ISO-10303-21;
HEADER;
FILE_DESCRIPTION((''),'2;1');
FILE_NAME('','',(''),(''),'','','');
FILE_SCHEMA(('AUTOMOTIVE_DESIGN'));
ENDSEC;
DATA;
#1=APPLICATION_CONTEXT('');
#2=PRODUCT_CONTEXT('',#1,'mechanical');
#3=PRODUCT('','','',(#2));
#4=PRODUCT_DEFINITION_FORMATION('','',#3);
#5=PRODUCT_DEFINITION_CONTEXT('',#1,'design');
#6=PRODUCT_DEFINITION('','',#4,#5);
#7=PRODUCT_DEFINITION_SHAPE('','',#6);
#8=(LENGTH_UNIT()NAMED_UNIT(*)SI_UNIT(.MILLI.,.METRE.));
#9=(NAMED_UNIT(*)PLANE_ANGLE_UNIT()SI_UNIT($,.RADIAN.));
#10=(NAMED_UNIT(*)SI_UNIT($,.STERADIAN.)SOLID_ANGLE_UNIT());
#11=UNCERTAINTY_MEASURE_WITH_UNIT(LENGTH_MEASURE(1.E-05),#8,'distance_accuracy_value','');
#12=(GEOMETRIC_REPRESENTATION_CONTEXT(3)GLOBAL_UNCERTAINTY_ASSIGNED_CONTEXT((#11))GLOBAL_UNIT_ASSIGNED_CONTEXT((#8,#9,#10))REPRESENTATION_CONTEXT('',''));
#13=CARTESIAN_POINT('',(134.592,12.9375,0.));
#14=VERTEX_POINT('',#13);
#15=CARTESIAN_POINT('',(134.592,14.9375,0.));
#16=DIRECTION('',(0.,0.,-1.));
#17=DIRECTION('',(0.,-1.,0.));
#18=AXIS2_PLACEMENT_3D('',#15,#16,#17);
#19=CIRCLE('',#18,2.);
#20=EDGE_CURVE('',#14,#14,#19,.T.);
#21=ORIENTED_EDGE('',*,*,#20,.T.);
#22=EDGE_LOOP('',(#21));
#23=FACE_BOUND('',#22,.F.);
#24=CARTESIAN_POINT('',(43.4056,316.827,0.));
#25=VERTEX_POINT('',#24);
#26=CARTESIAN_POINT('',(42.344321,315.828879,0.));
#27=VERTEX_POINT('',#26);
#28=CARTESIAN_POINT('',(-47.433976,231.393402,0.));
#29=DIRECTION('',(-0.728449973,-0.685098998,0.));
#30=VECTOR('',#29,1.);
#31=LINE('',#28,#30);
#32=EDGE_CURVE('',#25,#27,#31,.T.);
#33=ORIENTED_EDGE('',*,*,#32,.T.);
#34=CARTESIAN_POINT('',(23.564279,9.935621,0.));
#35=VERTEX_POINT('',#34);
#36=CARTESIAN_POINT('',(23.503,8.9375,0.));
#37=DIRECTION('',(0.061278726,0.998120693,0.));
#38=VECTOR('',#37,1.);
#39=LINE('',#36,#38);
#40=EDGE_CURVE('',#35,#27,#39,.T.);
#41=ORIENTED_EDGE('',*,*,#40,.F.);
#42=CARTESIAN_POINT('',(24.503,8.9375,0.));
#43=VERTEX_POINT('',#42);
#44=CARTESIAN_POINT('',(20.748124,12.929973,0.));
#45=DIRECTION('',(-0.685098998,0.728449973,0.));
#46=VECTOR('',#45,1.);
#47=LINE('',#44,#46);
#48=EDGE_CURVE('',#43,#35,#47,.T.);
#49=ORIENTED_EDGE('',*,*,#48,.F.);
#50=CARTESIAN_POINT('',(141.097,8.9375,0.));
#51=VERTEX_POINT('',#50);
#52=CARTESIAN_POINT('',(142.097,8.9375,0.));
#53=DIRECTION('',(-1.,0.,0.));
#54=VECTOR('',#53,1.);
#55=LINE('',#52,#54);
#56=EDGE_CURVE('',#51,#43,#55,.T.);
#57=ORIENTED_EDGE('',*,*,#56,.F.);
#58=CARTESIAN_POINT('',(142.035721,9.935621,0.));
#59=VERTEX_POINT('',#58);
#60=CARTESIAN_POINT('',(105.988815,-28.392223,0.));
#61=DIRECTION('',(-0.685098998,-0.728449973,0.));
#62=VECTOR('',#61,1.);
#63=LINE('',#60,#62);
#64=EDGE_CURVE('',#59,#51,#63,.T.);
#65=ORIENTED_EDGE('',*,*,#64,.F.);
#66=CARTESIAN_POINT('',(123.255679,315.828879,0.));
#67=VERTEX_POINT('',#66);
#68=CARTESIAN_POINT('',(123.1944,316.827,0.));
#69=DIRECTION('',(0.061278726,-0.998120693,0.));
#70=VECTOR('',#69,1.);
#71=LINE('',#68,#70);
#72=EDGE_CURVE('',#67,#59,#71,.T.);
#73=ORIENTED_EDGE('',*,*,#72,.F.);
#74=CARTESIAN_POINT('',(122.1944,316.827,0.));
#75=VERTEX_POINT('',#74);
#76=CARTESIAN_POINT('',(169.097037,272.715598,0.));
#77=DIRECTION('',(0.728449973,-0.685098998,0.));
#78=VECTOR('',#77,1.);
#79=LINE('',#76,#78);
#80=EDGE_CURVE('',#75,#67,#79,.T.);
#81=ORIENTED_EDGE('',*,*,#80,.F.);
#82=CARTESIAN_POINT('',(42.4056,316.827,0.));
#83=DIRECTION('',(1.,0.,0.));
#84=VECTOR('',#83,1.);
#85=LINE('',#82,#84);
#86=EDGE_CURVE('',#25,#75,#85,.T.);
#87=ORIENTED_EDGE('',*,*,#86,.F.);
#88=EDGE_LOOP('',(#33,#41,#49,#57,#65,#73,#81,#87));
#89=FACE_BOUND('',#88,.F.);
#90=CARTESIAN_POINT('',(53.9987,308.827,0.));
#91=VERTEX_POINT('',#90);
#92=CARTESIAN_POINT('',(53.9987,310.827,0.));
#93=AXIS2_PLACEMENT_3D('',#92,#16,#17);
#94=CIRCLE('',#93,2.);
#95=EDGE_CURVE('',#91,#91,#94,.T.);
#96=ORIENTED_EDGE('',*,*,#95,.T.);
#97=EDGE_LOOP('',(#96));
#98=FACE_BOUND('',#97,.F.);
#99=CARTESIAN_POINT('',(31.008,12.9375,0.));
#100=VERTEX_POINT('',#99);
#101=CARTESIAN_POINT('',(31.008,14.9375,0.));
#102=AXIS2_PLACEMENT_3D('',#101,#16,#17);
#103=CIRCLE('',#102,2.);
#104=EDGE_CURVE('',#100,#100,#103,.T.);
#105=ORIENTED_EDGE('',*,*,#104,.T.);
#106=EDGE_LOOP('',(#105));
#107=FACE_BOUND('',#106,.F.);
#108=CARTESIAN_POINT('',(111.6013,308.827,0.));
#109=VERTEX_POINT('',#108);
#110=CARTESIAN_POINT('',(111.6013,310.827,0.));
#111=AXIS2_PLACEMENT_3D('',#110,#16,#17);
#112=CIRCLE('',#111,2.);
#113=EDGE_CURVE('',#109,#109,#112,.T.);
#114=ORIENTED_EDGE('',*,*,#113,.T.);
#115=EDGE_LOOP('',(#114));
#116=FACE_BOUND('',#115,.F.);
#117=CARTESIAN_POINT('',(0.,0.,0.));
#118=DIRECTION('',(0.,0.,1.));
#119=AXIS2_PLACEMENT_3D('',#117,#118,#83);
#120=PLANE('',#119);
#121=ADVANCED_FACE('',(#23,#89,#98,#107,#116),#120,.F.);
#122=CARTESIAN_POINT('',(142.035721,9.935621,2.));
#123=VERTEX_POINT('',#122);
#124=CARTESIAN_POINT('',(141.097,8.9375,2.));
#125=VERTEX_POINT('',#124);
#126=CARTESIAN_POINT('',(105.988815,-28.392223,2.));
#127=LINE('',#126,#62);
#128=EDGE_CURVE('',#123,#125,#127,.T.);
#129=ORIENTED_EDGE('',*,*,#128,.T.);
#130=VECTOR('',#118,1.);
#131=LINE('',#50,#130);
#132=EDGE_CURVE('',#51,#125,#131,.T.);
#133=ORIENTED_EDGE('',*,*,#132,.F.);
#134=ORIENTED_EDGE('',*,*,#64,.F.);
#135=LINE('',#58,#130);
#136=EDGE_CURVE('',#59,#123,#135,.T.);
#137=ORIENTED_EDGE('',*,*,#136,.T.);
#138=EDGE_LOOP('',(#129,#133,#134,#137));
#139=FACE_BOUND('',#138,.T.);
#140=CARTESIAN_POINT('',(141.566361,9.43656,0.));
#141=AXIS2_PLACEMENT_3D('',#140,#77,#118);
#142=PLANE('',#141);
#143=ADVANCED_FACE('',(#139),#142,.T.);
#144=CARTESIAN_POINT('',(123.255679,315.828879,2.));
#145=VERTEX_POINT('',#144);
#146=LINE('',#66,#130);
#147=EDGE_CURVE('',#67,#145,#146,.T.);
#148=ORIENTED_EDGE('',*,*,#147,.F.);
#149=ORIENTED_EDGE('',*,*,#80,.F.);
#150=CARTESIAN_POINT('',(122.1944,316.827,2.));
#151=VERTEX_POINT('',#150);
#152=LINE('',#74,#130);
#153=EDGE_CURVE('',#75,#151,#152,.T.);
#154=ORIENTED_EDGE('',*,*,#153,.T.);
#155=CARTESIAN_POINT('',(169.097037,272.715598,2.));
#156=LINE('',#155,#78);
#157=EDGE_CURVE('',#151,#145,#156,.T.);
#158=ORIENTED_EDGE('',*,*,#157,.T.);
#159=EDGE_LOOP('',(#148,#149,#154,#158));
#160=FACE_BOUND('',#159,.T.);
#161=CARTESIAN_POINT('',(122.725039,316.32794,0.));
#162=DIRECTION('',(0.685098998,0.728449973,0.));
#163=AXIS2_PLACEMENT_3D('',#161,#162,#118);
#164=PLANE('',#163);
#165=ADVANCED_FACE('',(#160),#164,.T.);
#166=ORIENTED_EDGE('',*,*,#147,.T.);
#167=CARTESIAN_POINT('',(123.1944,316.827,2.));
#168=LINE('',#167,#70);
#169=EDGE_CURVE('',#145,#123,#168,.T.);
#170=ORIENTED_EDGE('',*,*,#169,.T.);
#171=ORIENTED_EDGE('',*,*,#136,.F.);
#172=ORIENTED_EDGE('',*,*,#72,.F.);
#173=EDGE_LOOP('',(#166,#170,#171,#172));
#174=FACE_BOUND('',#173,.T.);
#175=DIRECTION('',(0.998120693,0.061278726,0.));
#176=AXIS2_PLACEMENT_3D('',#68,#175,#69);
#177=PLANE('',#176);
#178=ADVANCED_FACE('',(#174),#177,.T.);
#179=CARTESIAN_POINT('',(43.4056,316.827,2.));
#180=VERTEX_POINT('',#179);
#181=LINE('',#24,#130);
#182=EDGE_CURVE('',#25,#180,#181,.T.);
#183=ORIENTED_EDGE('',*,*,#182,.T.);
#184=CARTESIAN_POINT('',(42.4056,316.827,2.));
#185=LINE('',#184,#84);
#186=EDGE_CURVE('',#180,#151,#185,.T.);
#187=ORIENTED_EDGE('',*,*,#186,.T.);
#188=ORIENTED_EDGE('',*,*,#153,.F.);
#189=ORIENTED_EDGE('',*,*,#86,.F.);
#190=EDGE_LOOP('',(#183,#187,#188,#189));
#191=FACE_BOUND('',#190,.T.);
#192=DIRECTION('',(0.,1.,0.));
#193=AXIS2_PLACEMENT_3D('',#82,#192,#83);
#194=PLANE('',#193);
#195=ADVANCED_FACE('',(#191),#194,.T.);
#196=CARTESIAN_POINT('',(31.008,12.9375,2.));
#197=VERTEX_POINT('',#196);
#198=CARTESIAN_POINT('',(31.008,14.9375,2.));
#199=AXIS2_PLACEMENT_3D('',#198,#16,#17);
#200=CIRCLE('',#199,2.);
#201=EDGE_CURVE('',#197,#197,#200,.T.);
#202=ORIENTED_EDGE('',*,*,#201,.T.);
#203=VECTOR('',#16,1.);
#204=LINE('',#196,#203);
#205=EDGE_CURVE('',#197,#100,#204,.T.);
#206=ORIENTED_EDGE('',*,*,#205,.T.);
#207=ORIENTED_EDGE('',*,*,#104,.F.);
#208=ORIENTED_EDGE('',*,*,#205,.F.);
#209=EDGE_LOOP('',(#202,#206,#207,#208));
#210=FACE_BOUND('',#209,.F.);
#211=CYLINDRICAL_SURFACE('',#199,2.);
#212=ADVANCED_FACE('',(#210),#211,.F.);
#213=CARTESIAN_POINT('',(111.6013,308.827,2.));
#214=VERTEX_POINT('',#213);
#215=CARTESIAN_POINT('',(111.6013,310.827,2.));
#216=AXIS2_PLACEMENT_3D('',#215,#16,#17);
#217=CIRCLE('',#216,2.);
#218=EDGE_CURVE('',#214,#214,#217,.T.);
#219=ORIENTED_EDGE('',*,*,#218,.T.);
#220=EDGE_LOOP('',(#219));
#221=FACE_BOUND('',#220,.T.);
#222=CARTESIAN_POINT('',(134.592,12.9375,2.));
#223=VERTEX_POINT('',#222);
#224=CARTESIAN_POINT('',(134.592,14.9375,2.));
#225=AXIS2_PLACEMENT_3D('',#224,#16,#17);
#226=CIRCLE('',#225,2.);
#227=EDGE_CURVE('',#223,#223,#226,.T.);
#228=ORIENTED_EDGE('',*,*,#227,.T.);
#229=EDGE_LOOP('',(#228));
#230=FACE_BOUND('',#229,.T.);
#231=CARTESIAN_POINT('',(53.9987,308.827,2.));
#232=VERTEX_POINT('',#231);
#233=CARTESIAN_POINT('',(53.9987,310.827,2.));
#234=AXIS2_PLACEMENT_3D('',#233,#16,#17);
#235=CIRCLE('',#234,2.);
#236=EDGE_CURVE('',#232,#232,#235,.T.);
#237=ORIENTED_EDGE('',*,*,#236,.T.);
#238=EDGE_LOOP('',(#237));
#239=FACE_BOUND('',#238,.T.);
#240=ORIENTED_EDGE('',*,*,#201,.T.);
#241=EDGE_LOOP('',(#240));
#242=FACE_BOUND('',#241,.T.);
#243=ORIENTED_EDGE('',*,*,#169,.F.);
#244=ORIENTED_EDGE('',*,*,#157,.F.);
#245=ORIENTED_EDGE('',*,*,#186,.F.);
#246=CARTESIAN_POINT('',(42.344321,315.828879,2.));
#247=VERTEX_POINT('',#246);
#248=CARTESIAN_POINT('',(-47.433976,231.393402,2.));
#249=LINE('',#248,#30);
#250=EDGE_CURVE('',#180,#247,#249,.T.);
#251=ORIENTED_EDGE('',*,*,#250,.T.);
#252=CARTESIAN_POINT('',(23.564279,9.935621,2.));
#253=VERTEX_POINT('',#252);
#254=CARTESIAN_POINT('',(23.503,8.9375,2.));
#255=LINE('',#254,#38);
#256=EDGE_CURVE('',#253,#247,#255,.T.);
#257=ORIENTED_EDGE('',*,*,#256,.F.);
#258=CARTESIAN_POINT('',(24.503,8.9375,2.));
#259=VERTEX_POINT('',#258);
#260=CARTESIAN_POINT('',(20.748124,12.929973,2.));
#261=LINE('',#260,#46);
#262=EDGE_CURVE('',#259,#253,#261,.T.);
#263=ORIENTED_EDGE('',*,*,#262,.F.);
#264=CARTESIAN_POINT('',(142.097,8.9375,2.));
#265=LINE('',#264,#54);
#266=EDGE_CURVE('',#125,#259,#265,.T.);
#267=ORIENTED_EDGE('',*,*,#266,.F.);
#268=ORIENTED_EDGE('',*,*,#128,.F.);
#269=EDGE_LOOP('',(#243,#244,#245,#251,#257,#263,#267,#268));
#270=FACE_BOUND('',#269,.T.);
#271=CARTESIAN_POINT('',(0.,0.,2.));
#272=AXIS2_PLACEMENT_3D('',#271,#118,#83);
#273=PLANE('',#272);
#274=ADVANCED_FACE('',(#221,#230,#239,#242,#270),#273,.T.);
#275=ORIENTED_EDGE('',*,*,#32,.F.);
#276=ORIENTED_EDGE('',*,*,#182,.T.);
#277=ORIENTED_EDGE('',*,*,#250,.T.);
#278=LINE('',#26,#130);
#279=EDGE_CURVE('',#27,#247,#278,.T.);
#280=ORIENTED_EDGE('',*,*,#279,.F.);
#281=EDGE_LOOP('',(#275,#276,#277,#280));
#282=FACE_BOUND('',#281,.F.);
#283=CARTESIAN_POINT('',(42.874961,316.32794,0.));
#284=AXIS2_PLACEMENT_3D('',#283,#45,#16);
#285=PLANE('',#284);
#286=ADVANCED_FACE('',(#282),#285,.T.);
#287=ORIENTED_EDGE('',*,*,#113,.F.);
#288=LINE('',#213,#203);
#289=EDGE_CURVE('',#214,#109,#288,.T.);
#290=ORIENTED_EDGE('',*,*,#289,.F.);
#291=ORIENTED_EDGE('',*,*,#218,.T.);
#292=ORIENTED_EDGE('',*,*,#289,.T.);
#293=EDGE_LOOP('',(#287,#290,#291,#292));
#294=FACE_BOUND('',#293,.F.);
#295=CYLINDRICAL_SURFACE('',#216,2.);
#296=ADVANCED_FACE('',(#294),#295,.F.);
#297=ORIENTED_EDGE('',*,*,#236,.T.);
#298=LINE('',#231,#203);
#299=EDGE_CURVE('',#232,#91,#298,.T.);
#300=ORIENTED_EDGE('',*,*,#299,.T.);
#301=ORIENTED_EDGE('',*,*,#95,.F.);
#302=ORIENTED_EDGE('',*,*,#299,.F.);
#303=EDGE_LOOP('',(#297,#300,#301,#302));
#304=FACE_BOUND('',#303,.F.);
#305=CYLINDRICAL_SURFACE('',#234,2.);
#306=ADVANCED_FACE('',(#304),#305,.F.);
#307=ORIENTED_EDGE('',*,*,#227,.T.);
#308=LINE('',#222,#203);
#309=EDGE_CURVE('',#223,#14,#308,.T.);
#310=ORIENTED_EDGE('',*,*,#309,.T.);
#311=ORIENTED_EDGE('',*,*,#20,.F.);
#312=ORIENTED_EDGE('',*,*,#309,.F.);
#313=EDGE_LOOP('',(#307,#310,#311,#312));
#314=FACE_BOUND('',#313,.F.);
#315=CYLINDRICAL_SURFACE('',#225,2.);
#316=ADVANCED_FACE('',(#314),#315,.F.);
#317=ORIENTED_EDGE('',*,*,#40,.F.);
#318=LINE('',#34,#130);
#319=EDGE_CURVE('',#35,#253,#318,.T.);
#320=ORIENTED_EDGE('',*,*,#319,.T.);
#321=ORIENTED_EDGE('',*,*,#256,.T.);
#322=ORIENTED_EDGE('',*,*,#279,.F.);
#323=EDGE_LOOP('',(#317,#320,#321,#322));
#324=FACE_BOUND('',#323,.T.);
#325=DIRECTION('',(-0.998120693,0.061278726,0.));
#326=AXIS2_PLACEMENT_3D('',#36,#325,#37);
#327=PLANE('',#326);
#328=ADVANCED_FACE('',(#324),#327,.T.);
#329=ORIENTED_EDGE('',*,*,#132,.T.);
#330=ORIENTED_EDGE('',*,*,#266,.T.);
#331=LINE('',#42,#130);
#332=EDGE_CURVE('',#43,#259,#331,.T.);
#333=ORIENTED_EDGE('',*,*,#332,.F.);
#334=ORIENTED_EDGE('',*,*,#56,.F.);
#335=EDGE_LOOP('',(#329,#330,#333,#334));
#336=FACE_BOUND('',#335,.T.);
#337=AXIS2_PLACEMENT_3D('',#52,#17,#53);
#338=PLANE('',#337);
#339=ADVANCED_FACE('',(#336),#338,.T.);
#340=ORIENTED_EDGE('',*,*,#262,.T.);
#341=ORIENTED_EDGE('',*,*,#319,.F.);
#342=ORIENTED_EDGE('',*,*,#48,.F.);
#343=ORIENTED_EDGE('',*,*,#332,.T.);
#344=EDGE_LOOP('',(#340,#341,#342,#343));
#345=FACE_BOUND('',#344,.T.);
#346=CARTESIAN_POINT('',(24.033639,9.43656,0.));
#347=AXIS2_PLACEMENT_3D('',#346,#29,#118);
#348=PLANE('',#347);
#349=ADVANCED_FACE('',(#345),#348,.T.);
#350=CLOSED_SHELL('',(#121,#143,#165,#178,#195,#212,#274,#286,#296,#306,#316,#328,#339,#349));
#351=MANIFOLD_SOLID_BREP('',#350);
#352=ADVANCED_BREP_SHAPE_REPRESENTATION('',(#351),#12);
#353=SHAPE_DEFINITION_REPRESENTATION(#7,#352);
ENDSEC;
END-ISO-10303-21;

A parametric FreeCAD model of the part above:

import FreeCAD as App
import Part
import Sketcher

V = App.Vector


def edges_at(feature, points):
    """Names of the edges that pass closest to the given points."""
    edges = feature.Shape.Edges
    near = lambda p: min(range(len(edges)), key=lambda i: edges[i].distToShape(Part.Vertex(*p))[0])
    return sorted({f"Edge{near(p) + 1}" for p in points})


def add_polygon(sketch, points):
    """Adds a closed chain of lines whose ends are joined by coincident constraints."""
    first, n = sketch.GeometryCount, len(points)
    for a, b in zip(points, points[1:] + points[:1]):
        sketch.addGeometry(Part.LineSegment(App.Vector(*a, 0), App.Vector(*b, 0)), False)
    for i in range(n):
        sketch.addConstraint(Sketcher.Constraint("Coincident", first + i, 2, first + (i + 1) % n, 1))

doc = App.newDocument("Part")
body = doc.addObject("PartDesign::Body", "Body")

# Sketch on XY plane
sketch1 = doc.addObject("Sketcher::SketchObject", "Sketch")
body.addObject(sketch1)
sketch1.AttachmentSupport = (doc.XY_Plane, [""])
sketch1.MapMode = "FlatFace"
add_polygon(sketch1, [(123, 317), (42, 317), (24, 9), (142, 9)])  # lines 0-3
sketch1.addConstraint(Sketcher.Constraint("Horizontal", 0))
sketch1.addConstraint(Sketcher.Constraint("Horizontal", 2))
sketch1.addConstraint(Sketcher.Constraint("Equal", 1, 3))
sketch1.addConstraint(Sketcher.Constraint("DistanceX", 2, 1, 2, 2, 118.594))
sketch1.addConstraint(Sketcher.Constraint("DistanceX", 0, 2, 0, 1, 80.7888))
sketch1.addConstraint(Sketcher.Constraint("DistanceY", -1, 1, 0, 2, 316.827))
sketch1.addConstraint(Sketcher.Constraint("DistanceX", -1, 1, 1, 2, 23.503))
sketch1.addConstraint(Sketcher.Constraint("Distance", 1, 308.4692))
pad1 = doc.addObject("PartDesign::Pad", "Pad")
body.addObject(pad1)
pad1.Profile = sketch1
pad1.Length = 2
doc.recompute()

chamfer = doc.addObject("PartDesign::Chamfer", "Chamfer")
body.addObject(chamfer)
chamfer.Base = (pad1, edges_at(pad1, [
    (123.194, 316.827, 1),
    (42.406, 316.827, 1),
    (142.097, 8.938, 1),
    (23.503, 8.938, 1),
]))
chamfer.Size = 1

# Sketch on XY plane
sketch2 = doc.addObject("Sketcher::SketchObject", "Sketch001")
body.addObject(sketch2)
sketch2.AttachmentSupport = (doc.XY_Plane, [""])
sketch2.MapMode = "FlatFace"
sketch2.AttachmentOffset = App.Placement(V(0, 0, 2), App.Rotation())
sketch2.addGeometry(Part.Circle(V(54, 310.8, 0), V(0, 0, 1), 2), False)
sketch2.addGeometry(Part.Circle(V(31, 14.9, 0), V(0, 0, 1), 2), False)
sketch2.addGeometry(Part.Circle(V(111.6, 310.8, 0), V(0, 0, 1), 2), False)
sketch2.addGeometry(Part.Circle(V(134.6, 14.9, 0), V(0, 0, 1), 2), False)
sketch2.addConstraint(Sketcher.Constraint("Equal", 0, 1))
sketch2.addConstraint(Sketcher.Constraint("Equal", 1, 2))
sketch2.addConstraint(Sketcher.Constraint("Equal", 2, 3))
sketch2.addConstraint(Sketcher.Constraint("Horizontal", 0, 3, 2, 3))
sketch2.addConstraint(Sketcher.Constraint("Horizontal", 1, 3, 3, 3))
sketch2.addConstraint(Sketcher.Constraint("Diameter", 0, 4.0))
sketch2.addConstraint(Sketcher.Constraint("DistanceY", -1, 1, 0, 3, 310.827))
sketch2.addConstraint(Sketcher.Constraint("DistanceX", -1, 1, 1, 3, 31.008))
sketch2.addConstraint(Sketcher.Constraint("DistanceX", -1, 1, 3, 3, 134.592))
sketch2.addConstraint(Sketcher.Constraint("DistanceX", -1, 1, 0, 3, 53.9987))
sketch2.addConstraint(Sketcher.Constraint("DistanceY", -1, 1, 1, 3, 14.9375))
sketch2.addConstraint(Sketcher.Constraint("DistanceX", -1, 1, 2, 3, 111.6013))
doc.recompute()
hole = doc.addObject("PartDesign::Hole", "Hole")
body.addObject(hole)
hole.Profile = sketch2
hole.ThreadType = "None"
hole.Diameter = 4
hole.DepthType = "ThroughAll"

doc.recompute()
